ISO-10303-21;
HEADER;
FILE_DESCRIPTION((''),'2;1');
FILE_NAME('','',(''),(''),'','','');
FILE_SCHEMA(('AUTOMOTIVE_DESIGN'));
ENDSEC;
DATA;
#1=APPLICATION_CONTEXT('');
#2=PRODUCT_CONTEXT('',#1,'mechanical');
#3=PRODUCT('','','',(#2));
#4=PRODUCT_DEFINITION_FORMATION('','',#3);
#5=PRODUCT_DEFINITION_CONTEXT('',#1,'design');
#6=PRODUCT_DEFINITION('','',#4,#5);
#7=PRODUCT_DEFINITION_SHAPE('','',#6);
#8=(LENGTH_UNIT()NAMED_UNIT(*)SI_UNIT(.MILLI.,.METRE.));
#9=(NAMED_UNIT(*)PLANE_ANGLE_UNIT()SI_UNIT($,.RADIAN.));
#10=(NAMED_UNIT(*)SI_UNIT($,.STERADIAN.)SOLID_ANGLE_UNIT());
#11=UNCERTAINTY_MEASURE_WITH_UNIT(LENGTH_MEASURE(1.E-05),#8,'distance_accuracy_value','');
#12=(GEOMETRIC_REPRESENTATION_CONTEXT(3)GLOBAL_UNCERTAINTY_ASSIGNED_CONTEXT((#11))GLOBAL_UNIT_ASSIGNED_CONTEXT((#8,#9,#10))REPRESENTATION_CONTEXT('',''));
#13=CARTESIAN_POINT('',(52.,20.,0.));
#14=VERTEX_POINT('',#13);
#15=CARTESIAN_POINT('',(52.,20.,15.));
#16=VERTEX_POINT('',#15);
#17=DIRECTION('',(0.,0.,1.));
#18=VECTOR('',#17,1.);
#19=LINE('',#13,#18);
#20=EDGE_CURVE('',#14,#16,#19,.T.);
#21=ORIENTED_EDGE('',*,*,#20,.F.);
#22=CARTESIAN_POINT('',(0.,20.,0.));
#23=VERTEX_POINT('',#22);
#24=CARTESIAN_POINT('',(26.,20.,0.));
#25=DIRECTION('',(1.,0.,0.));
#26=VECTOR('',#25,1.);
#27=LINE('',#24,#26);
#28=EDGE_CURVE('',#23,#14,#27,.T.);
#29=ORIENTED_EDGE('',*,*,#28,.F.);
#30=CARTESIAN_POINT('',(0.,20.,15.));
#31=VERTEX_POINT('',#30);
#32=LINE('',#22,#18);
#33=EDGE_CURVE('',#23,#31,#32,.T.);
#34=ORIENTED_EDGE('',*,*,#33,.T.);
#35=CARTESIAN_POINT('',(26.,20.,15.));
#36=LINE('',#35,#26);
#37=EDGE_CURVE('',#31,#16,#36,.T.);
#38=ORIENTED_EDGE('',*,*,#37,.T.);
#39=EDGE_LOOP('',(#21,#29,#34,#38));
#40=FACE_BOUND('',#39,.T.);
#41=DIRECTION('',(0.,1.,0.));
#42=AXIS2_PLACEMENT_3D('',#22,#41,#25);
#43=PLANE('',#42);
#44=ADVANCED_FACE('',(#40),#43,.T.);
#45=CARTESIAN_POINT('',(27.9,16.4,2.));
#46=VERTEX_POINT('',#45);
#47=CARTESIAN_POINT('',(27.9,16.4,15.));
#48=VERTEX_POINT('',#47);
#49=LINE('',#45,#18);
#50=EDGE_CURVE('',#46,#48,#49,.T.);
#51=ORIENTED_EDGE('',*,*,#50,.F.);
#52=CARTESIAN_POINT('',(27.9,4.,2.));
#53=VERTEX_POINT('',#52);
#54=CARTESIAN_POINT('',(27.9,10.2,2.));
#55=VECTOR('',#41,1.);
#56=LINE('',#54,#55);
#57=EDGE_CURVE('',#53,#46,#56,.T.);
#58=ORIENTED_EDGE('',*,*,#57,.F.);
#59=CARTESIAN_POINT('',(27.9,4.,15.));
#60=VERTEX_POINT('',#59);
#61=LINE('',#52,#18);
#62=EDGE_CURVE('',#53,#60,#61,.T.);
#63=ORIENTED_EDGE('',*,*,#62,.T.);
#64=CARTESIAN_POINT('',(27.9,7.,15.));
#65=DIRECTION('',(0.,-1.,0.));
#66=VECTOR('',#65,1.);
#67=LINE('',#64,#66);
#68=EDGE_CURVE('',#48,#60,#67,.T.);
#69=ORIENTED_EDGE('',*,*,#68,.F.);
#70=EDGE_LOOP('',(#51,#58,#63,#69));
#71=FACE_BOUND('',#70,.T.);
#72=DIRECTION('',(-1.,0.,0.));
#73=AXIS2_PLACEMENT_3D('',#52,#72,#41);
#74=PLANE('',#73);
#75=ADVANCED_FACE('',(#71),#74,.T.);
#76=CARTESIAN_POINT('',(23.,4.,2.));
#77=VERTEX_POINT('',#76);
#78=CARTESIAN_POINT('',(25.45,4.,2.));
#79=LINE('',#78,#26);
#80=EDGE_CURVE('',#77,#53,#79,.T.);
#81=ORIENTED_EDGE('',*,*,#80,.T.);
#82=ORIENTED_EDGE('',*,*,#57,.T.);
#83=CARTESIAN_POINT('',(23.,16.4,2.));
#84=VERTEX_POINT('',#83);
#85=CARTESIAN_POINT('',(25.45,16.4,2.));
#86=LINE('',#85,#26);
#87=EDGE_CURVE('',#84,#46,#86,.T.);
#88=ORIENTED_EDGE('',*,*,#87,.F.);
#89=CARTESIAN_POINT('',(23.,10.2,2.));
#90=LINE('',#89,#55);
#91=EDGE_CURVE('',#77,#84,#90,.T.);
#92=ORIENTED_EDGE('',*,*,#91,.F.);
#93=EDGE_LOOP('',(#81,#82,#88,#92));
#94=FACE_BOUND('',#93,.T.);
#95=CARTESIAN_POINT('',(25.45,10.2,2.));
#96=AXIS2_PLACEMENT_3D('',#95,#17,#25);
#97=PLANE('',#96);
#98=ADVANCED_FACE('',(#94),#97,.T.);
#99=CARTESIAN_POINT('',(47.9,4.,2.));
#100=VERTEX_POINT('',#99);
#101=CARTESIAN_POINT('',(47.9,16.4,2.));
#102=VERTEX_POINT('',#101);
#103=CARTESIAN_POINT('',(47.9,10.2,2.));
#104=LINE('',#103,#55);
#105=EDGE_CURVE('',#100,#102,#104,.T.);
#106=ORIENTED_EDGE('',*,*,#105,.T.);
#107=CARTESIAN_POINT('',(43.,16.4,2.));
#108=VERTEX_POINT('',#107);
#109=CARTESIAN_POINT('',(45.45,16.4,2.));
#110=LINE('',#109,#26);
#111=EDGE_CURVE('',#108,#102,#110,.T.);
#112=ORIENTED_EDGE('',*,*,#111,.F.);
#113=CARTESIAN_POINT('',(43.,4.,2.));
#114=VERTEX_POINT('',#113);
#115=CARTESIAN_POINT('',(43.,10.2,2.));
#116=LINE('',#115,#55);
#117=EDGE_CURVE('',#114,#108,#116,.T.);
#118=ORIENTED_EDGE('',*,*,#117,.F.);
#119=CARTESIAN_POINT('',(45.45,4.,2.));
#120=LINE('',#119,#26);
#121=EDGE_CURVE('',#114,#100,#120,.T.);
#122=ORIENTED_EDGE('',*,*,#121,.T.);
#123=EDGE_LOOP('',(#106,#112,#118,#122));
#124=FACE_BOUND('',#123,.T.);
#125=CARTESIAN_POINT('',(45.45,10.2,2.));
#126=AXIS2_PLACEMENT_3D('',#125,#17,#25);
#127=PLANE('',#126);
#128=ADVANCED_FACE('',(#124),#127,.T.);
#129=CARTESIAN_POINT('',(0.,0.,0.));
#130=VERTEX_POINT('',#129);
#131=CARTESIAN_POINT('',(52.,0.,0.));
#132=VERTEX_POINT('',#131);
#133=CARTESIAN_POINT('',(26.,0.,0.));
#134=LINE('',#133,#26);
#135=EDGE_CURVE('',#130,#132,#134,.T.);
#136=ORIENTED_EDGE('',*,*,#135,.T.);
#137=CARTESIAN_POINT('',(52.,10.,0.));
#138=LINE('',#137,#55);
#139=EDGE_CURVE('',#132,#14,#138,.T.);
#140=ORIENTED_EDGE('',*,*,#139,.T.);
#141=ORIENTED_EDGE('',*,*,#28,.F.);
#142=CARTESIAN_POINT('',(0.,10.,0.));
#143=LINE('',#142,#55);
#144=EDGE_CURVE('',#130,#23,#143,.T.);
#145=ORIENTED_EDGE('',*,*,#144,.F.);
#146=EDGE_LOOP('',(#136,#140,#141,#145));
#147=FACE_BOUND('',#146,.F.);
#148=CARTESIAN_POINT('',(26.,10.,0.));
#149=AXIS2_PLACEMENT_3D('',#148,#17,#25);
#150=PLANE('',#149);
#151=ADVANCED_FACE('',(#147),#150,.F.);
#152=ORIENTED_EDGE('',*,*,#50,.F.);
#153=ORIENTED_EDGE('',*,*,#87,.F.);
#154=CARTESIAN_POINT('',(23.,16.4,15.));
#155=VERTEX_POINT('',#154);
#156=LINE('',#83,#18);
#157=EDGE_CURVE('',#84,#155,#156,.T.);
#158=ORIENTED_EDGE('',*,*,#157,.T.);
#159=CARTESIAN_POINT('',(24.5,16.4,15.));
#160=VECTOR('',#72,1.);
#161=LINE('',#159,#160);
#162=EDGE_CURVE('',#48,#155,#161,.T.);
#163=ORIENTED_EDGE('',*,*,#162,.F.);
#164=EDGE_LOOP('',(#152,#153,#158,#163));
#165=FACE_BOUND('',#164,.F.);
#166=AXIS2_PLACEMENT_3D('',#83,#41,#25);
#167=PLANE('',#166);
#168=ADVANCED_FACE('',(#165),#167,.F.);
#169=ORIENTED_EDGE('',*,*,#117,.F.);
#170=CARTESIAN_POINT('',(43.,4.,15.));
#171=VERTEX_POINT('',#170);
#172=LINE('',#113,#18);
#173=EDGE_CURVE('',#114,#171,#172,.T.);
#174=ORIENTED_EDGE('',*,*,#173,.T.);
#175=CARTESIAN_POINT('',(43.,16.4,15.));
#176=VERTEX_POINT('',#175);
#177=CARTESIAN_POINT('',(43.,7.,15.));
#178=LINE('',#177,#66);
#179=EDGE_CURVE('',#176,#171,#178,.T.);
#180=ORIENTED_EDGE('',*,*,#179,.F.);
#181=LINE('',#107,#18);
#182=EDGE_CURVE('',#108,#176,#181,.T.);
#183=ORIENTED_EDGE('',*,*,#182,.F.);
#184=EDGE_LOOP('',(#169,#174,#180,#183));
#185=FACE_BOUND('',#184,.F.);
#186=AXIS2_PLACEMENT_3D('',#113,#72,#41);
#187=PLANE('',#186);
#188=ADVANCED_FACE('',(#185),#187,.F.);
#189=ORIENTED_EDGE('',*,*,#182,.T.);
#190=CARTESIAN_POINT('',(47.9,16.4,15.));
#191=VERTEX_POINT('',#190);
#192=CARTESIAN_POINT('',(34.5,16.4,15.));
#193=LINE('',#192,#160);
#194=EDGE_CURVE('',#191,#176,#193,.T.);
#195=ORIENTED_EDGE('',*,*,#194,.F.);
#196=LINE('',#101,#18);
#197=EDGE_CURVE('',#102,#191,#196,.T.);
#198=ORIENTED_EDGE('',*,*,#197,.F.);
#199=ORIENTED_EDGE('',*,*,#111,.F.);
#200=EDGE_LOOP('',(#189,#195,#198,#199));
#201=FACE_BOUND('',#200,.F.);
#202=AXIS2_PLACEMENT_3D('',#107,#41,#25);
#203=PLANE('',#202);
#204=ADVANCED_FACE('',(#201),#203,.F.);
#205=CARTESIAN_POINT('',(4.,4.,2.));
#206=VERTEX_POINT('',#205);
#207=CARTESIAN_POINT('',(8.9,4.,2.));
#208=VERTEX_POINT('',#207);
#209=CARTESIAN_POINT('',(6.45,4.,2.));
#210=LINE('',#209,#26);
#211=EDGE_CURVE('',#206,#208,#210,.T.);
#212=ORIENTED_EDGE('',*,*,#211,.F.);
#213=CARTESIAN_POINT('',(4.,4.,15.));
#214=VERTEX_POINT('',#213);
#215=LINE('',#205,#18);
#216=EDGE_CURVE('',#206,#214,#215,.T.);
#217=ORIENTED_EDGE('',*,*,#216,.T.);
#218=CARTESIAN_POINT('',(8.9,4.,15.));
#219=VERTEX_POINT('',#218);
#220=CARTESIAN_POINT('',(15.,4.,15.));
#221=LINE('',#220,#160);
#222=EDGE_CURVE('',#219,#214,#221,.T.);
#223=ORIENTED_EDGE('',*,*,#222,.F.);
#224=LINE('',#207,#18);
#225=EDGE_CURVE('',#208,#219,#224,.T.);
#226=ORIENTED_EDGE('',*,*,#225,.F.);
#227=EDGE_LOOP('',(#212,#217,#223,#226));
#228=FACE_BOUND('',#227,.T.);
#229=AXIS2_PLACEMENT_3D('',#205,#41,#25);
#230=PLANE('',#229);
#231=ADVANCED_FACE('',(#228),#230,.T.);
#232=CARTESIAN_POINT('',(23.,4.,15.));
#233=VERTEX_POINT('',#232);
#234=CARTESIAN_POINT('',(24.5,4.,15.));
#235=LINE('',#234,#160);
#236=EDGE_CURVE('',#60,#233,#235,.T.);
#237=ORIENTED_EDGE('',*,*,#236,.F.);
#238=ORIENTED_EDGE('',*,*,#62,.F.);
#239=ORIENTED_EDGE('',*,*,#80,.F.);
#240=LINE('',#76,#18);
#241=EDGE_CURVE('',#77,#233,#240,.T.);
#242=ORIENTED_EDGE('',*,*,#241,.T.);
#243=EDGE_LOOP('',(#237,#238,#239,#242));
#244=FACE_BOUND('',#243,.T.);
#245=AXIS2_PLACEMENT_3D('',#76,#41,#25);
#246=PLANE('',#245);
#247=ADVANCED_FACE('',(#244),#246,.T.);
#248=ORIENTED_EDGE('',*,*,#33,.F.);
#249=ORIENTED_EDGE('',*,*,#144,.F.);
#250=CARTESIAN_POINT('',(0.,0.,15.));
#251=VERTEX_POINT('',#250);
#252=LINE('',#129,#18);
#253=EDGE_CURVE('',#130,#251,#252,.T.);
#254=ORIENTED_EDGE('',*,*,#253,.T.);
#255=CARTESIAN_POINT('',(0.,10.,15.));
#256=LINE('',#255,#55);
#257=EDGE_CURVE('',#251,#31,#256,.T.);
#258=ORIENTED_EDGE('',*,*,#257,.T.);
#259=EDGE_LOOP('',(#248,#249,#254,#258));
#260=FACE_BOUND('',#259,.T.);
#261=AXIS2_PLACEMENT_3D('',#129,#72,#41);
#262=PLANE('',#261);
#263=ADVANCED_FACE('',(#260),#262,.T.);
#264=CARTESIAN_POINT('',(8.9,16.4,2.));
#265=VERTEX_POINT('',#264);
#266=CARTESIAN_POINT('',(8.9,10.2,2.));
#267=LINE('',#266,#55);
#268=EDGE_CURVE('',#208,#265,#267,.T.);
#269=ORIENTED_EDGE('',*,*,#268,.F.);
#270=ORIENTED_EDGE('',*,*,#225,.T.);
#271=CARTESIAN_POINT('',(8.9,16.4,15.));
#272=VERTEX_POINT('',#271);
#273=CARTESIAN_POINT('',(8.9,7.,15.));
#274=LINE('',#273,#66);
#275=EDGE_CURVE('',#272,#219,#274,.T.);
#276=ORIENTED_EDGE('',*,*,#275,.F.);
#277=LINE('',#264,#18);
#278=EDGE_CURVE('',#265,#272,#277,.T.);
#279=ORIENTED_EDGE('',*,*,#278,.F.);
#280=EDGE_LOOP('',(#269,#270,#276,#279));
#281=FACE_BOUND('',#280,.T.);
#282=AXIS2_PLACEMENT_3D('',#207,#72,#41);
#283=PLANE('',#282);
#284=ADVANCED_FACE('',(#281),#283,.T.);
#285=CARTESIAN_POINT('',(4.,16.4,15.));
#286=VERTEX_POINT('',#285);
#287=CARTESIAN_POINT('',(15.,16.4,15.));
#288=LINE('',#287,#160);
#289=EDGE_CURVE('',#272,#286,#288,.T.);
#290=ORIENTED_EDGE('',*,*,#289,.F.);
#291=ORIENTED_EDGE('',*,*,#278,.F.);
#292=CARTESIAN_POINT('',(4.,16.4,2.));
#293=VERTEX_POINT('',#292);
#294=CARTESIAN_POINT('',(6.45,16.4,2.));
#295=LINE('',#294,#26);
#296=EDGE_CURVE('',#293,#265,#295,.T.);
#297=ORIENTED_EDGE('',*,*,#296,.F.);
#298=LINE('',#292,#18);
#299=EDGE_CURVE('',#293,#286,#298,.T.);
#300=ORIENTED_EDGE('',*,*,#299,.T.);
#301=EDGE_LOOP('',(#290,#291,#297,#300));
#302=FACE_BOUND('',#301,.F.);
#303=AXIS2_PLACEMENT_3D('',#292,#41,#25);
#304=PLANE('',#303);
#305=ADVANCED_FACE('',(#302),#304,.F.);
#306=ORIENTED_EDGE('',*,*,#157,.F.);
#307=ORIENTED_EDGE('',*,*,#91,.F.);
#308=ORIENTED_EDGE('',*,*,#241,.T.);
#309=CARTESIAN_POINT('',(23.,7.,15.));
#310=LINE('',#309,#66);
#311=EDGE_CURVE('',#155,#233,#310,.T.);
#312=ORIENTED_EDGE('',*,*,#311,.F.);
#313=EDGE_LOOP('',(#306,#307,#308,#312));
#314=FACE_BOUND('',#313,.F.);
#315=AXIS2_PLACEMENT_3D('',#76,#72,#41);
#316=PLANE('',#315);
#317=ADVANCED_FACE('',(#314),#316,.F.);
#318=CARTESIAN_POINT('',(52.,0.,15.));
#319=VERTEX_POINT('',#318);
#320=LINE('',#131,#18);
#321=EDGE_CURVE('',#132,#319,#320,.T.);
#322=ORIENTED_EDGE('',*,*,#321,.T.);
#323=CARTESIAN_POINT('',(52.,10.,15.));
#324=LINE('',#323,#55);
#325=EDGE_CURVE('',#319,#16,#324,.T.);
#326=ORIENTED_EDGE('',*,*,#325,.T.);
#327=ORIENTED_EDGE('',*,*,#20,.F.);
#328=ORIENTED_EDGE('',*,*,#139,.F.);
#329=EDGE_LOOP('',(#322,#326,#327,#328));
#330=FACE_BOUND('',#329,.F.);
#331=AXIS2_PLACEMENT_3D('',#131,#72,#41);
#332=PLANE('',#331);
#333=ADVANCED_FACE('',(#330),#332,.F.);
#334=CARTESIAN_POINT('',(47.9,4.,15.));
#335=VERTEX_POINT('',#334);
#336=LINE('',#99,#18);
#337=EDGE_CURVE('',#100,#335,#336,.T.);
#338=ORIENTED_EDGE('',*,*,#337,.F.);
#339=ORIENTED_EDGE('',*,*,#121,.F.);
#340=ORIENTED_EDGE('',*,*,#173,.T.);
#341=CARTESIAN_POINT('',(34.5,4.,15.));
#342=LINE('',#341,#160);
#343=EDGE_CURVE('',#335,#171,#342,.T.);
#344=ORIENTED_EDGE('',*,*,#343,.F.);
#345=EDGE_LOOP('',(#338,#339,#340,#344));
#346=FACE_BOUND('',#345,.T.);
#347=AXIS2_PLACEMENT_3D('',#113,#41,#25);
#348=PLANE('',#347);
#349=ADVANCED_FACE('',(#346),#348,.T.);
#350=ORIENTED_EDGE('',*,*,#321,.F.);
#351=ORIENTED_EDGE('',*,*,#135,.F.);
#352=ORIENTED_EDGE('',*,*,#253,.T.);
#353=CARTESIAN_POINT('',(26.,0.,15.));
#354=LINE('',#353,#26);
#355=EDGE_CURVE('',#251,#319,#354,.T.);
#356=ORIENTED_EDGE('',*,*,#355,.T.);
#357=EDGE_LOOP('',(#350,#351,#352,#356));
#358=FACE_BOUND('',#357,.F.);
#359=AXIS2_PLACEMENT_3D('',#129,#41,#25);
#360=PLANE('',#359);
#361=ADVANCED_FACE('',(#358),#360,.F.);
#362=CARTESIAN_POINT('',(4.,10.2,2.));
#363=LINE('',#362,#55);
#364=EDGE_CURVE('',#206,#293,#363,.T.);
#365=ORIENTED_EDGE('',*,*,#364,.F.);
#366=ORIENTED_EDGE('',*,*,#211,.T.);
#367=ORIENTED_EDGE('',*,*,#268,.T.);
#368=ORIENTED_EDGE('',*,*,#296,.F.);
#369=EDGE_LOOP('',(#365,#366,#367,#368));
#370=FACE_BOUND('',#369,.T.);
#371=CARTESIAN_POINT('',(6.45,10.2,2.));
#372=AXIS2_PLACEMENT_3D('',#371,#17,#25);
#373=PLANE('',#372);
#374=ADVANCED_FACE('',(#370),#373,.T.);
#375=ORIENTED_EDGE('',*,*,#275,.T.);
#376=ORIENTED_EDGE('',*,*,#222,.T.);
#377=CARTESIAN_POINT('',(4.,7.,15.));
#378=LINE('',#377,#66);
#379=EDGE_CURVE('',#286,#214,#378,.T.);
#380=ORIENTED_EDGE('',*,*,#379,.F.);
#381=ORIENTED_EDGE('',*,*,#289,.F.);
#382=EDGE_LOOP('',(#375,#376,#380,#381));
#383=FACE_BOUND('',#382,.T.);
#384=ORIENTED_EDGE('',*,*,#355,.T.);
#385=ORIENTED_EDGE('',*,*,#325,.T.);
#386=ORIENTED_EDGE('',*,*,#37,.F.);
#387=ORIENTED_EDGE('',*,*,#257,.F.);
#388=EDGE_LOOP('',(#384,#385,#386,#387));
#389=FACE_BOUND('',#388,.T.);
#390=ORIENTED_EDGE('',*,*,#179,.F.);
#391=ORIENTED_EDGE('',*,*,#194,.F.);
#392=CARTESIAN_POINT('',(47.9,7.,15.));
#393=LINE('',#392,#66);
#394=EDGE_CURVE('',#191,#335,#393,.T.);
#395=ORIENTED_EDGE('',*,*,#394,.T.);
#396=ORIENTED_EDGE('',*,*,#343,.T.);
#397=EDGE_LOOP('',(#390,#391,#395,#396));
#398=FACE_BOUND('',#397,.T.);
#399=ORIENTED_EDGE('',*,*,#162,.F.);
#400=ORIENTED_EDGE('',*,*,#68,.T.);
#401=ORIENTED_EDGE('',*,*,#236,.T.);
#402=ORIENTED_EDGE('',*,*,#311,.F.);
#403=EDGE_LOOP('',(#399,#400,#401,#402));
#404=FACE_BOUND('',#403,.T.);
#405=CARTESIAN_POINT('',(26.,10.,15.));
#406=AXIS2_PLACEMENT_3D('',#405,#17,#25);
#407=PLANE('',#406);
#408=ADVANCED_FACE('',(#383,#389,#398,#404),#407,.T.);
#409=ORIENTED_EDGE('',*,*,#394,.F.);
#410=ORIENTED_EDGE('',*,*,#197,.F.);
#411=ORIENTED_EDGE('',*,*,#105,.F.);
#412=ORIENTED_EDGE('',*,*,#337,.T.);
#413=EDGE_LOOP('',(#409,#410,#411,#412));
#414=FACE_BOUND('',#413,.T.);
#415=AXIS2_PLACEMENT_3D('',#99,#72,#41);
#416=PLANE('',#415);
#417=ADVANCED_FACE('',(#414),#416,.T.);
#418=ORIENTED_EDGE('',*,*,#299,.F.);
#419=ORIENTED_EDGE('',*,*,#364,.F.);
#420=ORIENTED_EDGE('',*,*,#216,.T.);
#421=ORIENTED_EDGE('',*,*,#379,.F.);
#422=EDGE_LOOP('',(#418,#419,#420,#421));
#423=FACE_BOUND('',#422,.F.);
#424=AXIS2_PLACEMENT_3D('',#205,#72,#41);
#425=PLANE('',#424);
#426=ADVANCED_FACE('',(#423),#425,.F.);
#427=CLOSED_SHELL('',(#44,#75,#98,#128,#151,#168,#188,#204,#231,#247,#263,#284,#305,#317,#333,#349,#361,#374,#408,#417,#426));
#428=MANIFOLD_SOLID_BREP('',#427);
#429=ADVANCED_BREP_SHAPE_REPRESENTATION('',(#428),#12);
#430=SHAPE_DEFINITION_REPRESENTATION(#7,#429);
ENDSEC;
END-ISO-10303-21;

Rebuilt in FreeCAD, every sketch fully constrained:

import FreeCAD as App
import Part
import Sketcher

V = App.Vector
Q = App.Units.Quantity

doc = App.newDocument("Part")
params = doc.addObject("Spreadsheet::Sheet", "Params")
for row, (alias, value) in enumerate([
    ("sketch1_width", "4.9 mm"),
    ("sketch1_height", "12.4 mm"),
    ("pad1_length", "25 mm"),
    ("sketch2_width", "4.9 mm"),
    ("sketch2_height", "12.4 mm"),
    ("pad2_length", "25 mm"),
    ("sketch3_width", "4.9 mm"),
    ("sketch3_height", "12.4 mm"),
    ("pad3_length", "25 mm"),
    ("sketch4_width", "52 mm"),
    ("sketch4_height", "20 mm"),
    ("pad4_length", "15 mm"),
], start=1):
    params.set(f"A{row}", alias)
    params.set(f"B{row}", "=" + value)
    params.setAlias(f"B{row}", alias)

body = doc.addObject("PartDesign::Body", "Body")

# Sketch on XY plane
sketch1 = body.newObject("Sketcher::SketchObject", "Sketch")
sketch1.AttachmentSupport = (doc.getObject("XY_Plane"), [""])
sketch1.MapMode = "FlatFace"
sketch1.AttachmentOffset = App.Placement(V(0, 0, 2), App.Rotation())
sketch1.addGeometry([
    Part.LineSegment(V(23, 16.4, 0), V(23, 4, 0)),
    Part.LineSegment(V(23, 4, 0), V(27.9, 4, 0)),
    Part.LineSegment(V(27.9, 4, 0), V(27.9, 16.4, 0)),
    Part.LineSegment(V(27.9, 16.4, 0), V(23, 16.4, 0)),
], False)
sketch1.addConstraint([
    Sketcher.Constraint("Coincident", 0, 2, 1, 1),
    Sketcher.Constraint("Coincident", 1, 2, 2, 1),
    Sketcher.Constraint("Coincident", 2, 2, 3, 1),
    Sketcher.Constraint("Coincident", 3, 2, 0, 1),
    Sketcher.Constraint("Vertical", 0),
    Sketcher.Constraint("Horizontal", 1),
    Sketcher.Constraint("Vertical", 2),
    Sketcher.Constraint("Horizontal", 3),
    Sketcher.Constraint("DistanceX", 1, 1, 1, 2, Q("4.9 mm")),
    Sketcher.Constraint("DistanceY", 0, 2, 0, 1, Q("12.4 mm")),
    Sketcher.Constraint("DistanceX", -1, 1, 0, 2, Q("23 mm")),
    Sketcher.Constraint("DistanceY", -1, 1, 0, 2, Q("4 mm")),
])
sketch1.setExpression("Constraints[8]", "Params.sketch1_width")
sketch1.setExpression("Constraints[9]", "Params.sketch1_height")
pad1 = body.newObject("PartDesign::Pad", "Pad")
pad1.Profile = sketch1
pad1.setExpression("Length", "Params.pad1_length")
body2 = doc.addObject("PartDesign::Body", "Body001")

# Sketch on XY plane
sketch2 = body2.newObject("Sketcher::SketchObject", "Sketch001")
sketch2.AttachmentSupport = (doc.getObject("XY_Plane001"), [""])
sketch2.MapMode = "FlatFace"
sketch2.AttachmentOffset = App.Placement(V(0, 0, 2), App.Rotation())
sketch2.addGeometry([
    Part.LineSegment(V(43, 16.4, 0), V(43, 4, 0)),
    Part.LineSegment(V(43, 4, 0), V(47.9, 4, 0)),
    Part.LineSegment(V(47.9, 4, 0), V(47.9, 16.4, 0)),
    Part.LineSegment(V(47.9, 16.4, 0), V(43, 16.4, 0)),
], False)
sketch2.addConstraint([
    Sketcher.Constraint("Coincident", 0, 2, 1, 1),
    Sketcher.Constraint("Coincident", 1, 2, 2, 1),
    Sketcher.Constraint("Coincident", 2, 2, 3, 1),
    Sketcher.Constraint("Coincident", 3, 2, 0, 1),
    Sketcher.Constraint("Vertical", 0),
    Sketcher.Constraint("Horizontal", 1),
    Sketcher.Constraint("Vertical", 2),
    Sketcher.Constraint("Horizontal", 3),
    Sketcher.Constraint("DistanceX", 1, 1, 1, 2, Q("4.9 mm")),
    Sketcher.Constraint("DistanceY", 0, 2, 0, 1, Q("12.4 mm")),
    Sketcher.Constraint("DistanceX", -1, 1, 0, 2, Q("43 mm")),
    Sketcher.Constraint("DistanceY", -1, 1, 0, 2, Q("4 mm")),
])
sketch2.setExpression("Constraints[8]", "Params.sketch2_width")
sketch2.setExpression("Constraints[9]", "Params.sketch2_height")
pad2 = body2.newObject("PartDesign::Pad", "Pad001")
pad2.Profile = sketch2
pad2.setExpression("Length", "Params.pad2_length")
body3 = doc.addObject("PartDesign::Body", "Body002")

# Sketch on XY plane
sketch3 = body3.newObject("Sketcher::SketchObject", "Sketch002")
sketch3.AttachmentSupport = (doc.getObject("XY_Plane002"), [""])
sketch3.MapMode = "FlatFace"
sketch3.AttachmentOffset = App.Placement(V(0, 0, 2), App.Rotation())
sketch3.addGeometry([
    Part.LineSegment(V(4, 16.4, 0), V(4, 4, 0)),
    Part.LineSegment(V(4, 4, 0), V(8.9, 4, 0)),
    Part.LineSegment(V(8.9, 4, 0), V(8.9, 16.4, 0)),
    Part.LineSegment(V(8.9, 16.4, 0), V(4, 16.4, 0)),
], False)
sketch3.addConstraint([
    Sketcher.Constraint("Coincident", 0, 2, 1, 1),
    Sketcher.Constraint("Coincident", 1, 2, 2, 1),
    Sketcher.Constraint("Coincident", 2, 2, 3, 1),
    Sketcher.Constraint("Coincident", 3, 2, 0, 1),
    Sketcher.Constraint("Vertical", 0),
    Sketcher.Constraint("Horizontal", 1),
    Sketcher.Constraint("Vertical", 2),
    Sketcher.Constraint("Horizontal", 3),
    Sketcher.Constraint("DistanceX", 1, 1, 1, 2, Q("4.9 mm")),
    Sketcher.Constraint("DistanceY", 0, 2, 0, 1, Q("12.4 mm")),
    Sketcher.Constraint("DistanceX", -1, 1, 0, 2, Q("4 mm")),
    Sketcher.Constraint("DistanceY", -1, 1, 0, 2, Q("4 mm")),
])
sketch3.setExpression("Constraints[8]", "Params.sketch3_width")
sketch3.setExpression("Constraints[9]", "Params.sketch3_height")
pad3 = body3.newObject("PartDesign::Pad", "Pad002")
pad3.Profile = sketch3
pad3.setExpression("Length", "Params.pad3_length")
body4 = doc.addObject("PartDesign::Body", "Body003")

# Sketch on XY plane
sketch4 = body4.newObject("Sketcher::SketchObject", "Sketch003")
sketch4.AttachmentSupport = (doc.getObject("XY_Plane003"), [""])
sketch4.MapMode = "FlatFace"
sketch4.addGeometry([
    Part.LineSegment(V(0, 20, 0), V(0, 0, 0)),
    Part.LineSegment(V(0, 0, 0), V(52, 0, 0)),
    Part.LineSegment(V(52, 0, 0), V(52, 20, 0)),
    Part.LineSegment(V(52, 20, 0), V(0, 20, 0)),
], False)
sketch4.addConstraint([
    Sketcher.Constraint("Coincident", 0, 2, 1, 1),
    Sketcher.Constraint("Coincident", 1, 2, 2, 1),
    Sketcher.Constraint("Coincident", 2, 2, 3, 1),
    Sketcher.Constraint("Coincident", 3, 2, 0, 1),
    Sketcher.Constraint("Vertical", 0),
    Sketcher.Constraint("Horizontal", 1),
    Sketcher.Constraint("Vertical", 2),
    Sketcher.Constraint("Horizontal", 3),
    Sketcher.Constraint("Coincident", 0, 2, -1, 1),
    Sketcher.Constraint("DistanceX", 1, 1, 1, 2, Q("52 mm")),
    Sketcher.Constraint("DistanceY", 0, 2, 0, 1, Q("20 mm")),
])
sketch4.setExpression("Constraints[9]", "Params.sketch4_width")
sketch4.setExpression("Constraints[10]", "Params.sketch4_height")
pad4 = body4.newObject("PartDesign::Pad", "Pad003")
pad4.Profile = sketch4
pad4.setExpression("Length", "Params.pad4_length")
doc.recompute()

boolean = body4.newObject("PartDesign::Boolean", "Boolean")
boolean.Type = "Cut"
boolean.addObjects([body3])
doc.recompute()

boolean2 = body4.newObject("PartDesign::Boolean", "Boolean001")
boolean2.Type = "Cut"
boolean2.addObjects([body2])
doc.recompute()

boolean3 = body4.newObject("PartDesign::Boolean", "Boolean002")
boolean3.Type = "Cut"
boolean3.addObjects([body])

doc.recompute()
